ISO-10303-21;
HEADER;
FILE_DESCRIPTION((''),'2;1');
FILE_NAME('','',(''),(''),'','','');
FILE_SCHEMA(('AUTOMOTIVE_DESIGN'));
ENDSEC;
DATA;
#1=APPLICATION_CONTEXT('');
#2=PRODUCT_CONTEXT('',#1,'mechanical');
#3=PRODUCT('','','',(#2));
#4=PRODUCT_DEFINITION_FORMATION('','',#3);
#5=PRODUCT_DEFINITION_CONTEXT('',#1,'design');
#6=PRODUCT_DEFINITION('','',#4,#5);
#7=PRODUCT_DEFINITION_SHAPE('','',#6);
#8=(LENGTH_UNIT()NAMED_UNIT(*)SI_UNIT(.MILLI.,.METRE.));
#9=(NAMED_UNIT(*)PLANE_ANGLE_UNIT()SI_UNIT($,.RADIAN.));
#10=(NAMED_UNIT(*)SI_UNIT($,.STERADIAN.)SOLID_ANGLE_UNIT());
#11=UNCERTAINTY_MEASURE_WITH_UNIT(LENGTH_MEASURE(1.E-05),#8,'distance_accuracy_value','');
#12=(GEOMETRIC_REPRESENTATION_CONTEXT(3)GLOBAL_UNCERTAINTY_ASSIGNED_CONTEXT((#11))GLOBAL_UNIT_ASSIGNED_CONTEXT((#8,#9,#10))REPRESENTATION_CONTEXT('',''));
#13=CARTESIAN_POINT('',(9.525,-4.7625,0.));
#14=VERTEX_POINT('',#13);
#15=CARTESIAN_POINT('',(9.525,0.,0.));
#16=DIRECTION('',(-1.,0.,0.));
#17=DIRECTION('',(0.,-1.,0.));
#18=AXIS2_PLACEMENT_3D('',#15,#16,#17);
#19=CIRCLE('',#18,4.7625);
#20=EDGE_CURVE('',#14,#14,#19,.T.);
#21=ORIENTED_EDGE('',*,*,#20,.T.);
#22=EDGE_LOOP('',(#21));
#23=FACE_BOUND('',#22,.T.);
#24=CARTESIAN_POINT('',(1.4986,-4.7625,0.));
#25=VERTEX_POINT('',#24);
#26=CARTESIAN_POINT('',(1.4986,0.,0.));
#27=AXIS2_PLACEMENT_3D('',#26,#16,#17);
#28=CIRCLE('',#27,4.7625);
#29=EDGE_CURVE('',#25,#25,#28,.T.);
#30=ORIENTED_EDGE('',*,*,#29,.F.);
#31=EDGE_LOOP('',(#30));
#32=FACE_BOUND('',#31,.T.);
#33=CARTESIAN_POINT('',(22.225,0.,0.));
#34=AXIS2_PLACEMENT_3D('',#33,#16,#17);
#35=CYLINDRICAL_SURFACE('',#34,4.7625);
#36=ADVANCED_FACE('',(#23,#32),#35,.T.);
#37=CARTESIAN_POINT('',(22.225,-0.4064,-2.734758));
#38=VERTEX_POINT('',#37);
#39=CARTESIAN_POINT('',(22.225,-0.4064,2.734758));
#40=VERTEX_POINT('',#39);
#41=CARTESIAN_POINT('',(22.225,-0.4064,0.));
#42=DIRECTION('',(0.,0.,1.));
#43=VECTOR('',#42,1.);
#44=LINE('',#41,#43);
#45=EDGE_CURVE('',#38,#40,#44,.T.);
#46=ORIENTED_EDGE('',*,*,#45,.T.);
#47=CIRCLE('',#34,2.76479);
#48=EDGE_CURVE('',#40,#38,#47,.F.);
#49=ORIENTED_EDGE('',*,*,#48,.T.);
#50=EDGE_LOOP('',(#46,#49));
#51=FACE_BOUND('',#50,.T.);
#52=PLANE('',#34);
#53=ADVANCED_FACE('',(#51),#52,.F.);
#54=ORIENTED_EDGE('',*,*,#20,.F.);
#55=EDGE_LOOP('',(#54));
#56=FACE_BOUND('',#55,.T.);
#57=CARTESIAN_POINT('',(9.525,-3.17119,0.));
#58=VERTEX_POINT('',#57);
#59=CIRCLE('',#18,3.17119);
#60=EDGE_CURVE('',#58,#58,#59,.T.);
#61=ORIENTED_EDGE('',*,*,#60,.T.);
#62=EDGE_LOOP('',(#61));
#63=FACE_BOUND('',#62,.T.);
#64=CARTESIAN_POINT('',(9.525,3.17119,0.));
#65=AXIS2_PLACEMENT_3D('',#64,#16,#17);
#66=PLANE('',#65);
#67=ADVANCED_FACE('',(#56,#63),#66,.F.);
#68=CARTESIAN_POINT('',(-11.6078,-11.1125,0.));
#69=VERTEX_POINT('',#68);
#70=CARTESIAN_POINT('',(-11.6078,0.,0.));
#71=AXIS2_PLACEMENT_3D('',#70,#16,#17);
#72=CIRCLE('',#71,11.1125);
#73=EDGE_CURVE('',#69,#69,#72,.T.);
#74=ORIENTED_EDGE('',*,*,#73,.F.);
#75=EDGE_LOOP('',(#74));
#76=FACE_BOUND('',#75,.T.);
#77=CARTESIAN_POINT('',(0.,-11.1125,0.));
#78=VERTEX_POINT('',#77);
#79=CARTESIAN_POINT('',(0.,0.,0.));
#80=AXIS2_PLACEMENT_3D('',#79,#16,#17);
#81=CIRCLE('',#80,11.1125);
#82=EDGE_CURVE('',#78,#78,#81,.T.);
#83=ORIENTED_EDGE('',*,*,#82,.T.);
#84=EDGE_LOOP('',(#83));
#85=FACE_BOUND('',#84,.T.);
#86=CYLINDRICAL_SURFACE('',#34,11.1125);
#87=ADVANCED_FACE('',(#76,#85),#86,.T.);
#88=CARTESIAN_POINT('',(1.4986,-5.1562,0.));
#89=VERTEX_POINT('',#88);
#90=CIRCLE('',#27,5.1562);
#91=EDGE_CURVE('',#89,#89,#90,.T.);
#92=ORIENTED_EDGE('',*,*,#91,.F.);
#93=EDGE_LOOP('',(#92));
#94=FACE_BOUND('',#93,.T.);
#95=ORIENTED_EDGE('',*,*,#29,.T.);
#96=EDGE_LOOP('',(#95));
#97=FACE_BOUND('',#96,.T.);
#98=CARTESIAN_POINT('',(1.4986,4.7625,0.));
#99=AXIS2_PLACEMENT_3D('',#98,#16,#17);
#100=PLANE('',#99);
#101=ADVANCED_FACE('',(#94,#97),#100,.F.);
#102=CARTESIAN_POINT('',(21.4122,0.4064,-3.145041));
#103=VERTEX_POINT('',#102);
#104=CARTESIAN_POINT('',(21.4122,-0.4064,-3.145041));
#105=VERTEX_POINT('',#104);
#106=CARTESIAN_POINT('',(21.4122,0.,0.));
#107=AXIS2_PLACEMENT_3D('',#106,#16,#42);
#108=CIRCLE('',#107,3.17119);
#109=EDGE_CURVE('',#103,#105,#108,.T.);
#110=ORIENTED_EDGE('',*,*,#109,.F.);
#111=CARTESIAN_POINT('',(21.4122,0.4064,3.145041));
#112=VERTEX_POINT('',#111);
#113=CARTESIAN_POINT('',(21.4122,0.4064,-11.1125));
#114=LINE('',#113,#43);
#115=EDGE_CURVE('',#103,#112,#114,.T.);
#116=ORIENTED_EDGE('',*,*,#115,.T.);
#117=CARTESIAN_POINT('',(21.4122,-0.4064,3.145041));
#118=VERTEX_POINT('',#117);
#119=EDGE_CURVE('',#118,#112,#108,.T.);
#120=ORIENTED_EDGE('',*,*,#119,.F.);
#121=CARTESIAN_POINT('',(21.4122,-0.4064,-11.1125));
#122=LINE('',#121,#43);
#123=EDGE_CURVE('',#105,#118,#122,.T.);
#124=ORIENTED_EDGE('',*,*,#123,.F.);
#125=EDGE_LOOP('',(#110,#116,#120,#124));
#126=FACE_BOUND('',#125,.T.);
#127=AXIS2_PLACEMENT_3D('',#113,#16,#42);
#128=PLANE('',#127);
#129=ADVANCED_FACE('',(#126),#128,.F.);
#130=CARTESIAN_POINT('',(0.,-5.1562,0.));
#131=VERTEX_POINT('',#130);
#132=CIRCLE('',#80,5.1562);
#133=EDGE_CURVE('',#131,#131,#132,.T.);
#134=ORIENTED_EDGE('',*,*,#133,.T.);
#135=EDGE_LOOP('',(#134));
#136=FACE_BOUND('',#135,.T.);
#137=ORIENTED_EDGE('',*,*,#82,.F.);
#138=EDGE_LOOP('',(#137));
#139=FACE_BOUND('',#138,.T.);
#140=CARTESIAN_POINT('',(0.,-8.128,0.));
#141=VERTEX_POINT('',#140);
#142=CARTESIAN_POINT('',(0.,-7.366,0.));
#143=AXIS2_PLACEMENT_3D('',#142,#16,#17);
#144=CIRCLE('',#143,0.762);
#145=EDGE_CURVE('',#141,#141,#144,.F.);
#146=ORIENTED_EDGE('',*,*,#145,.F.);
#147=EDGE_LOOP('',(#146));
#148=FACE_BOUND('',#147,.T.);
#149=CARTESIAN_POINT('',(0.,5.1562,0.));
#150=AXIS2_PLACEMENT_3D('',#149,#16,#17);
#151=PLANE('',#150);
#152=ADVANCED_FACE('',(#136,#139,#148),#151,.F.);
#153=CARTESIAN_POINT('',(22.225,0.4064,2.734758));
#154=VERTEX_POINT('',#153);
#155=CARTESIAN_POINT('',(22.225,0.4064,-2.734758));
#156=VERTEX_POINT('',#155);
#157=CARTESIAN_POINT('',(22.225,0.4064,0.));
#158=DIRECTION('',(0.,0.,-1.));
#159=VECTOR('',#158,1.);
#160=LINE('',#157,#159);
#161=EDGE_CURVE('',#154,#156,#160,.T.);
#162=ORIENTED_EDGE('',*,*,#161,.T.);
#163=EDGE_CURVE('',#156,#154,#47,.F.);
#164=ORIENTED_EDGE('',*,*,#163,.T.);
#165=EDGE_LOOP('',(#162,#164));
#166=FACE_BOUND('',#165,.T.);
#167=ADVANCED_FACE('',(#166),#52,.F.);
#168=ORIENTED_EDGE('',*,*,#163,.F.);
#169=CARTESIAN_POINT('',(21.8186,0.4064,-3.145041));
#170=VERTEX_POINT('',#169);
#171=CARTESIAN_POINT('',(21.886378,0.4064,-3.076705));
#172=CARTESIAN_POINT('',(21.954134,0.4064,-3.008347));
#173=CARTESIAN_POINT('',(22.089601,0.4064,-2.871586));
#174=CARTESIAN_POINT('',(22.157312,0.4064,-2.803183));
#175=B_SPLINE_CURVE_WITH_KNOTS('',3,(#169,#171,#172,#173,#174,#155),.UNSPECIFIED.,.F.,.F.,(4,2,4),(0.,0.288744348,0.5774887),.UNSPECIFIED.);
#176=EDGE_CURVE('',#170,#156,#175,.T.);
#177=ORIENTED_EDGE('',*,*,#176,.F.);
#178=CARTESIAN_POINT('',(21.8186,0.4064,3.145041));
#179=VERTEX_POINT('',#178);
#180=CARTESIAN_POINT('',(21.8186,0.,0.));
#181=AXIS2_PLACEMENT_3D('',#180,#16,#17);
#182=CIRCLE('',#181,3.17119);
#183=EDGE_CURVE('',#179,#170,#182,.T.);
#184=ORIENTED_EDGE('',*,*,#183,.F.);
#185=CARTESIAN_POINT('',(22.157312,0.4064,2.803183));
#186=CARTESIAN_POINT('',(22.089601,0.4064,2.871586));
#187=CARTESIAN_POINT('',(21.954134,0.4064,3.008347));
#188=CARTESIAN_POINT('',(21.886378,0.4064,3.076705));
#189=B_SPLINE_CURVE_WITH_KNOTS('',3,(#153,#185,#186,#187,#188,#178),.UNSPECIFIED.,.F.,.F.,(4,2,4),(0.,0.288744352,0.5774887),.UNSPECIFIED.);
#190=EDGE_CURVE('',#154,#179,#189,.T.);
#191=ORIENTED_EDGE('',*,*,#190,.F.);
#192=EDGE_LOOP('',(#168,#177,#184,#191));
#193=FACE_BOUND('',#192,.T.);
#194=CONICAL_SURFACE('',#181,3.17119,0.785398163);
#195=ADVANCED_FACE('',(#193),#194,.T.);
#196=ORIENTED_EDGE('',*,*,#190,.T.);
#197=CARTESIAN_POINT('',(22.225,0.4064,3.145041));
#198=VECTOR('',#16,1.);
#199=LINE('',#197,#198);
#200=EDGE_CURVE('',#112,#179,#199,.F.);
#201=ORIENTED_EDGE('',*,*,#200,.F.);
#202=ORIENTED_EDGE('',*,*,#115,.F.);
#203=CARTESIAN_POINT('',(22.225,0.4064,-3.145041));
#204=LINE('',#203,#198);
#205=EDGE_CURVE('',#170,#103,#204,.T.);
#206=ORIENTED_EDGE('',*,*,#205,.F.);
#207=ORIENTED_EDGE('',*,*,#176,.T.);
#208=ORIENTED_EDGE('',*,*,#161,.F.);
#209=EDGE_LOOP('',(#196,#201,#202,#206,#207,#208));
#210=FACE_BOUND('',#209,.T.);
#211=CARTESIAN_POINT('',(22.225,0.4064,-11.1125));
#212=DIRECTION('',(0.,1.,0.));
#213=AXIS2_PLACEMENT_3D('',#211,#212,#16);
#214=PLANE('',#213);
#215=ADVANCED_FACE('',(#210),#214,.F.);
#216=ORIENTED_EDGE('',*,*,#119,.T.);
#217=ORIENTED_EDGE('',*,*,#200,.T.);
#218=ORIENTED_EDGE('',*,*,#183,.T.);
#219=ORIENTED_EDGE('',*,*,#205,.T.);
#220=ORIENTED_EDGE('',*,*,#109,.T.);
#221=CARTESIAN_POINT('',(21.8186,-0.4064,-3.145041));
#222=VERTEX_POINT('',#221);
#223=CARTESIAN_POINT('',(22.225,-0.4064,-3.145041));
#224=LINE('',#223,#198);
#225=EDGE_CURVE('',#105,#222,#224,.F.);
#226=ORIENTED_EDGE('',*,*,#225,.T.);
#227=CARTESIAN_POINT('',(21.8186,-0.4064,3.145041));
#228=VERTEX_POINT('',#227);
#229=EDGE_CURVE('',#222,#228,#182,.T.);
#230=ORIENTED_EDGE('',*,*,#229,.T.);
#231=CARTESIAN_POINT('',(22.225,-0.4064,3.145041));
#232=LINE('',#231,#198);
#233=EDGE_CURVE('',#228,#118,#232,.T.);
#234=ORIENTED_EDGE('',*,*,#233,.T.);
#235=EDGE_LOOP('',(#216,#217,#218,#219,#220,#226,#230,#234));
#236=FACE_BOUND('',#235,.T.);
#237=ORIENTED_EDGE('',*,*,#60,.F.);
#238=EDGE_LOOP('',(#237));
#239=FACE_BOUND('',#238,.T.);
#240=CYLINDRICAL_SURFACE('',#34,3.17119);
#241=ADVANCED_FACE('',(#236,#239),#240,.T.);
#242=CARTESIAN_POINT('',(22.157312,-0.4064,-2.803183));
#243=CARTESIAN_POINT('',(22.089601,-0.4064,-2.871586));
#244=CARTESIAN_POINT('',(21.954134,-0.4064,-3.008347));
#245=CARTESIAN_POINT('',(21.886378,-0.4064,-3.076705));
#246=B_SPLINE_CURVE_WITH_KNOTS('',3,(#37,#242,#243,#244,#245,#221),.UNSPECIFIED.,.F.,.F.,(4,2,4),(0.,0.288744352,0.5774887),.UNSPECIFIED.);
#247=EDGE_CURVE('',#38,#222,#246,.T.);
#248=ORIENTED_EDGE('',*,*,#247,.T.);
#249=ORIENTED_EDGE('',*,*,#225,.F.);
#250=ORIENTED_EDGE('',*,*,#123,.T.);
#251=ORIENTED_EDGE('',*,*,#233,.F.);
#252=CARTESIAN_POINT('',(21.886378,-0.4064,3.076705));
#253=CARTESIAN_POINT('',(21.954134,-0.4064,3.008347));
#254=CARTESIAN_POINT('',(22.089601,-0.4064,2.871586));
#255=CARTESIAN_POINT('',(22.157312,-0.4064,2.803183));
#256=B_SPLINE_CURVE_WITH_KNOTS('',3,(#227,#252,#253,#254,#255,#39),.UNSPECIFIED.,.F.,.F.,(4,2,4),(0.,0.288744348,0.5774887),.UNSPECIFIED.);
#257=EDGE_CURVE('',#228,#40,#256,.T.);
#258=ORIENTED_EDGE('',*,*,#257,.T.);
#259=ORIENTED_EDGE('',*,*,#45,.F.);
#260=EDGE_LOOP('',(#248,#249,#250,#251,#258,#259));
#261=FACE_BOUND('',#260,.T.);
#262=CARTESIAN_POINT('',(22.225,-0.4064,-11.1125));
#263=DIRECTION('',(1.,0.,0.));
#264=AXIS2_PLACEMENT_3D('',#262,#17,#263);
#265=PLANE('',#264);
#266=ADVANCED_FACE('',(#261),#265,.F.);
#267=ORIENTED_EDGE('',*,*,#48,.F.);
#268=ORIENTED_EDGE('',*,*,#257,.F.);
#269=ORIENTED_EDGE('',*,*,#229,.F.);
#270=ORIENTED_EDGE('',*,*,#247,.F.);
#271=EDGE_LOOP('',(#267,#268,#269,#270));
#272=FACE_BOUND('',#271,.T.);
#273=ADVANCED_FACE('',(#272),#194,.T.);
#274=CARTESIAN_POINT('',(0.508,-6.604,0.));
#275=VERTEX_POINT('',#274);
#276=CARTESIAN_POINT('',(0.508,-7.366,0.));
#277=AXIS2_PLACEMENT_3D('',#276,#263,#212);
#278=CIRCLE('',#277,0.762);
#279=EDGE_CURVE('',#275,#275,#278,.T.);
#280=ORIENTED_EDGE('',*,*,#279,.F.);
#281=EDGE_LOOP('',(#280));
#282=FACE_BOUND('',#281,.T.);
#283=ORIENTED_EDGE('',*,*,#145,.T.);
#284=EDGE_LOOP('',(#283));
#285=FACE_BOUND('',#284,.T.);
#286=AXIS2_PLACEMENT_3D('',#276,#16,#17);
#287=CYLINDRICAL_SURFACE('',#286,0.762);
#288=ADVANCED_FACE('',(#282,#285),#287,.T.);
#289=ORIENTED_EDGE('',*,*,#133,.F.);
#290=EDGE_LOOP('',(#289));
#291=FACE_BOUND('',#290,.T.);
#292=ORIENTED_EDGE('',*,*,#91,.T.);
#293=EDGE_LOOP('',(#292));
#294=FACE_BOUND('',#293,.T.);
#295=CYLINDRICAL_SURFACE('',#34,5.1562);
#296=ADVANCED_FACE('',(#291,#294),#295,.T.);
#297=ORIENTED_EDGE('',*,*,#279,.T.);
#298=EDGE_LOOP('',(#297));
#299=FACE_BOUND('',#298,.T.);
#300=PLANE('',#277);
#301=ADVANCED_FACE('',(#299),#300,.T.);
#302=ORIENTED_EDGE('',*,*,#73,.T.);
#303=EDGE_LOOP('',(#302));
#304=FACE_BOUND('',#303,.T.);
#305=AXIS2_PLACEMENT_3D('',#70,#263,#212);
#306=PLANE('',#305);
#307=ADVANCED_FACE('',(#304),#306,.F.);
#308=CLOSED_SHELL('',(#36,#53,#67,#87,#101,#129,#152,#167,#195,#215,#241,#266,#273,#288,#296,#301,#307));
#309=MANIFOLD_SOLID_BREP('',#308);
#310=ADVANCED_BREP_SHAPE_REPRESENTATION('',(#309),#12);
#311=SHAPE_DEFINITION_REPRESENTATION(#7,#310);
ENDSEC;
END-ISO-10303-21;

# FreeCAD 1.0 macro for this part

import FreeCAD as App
import Part
import Sketcher
from FreeCAD import Vector
Q = App.Units.Quantity


def edges_at(feature, points):
    """Names of the edges that pass closest to the given points."""
    edges = feature.Shape.Edges
    near = lambda p: min(range(len(edges)), key=lambda i: edges[i].distToShape(Part.Vertex(*p))[0])
    return sorted({f"Edge{near(p) + 1}" for p in points})

doc = App.newDocument("Part")
body = doc.addObject("PartDesign::Body", "Body")

# Sketch on XY plane
sketch1 = body.newObject("Sketcher::SketchObject", "Sketch")
sketch1.AttachmentSupport = (doc.getObject("XY_Plane"), [""])
sketch1.MapMode = "FlatFace"
sketch1.addGeometry([
    Part.LineSegment(Vector(22.23, 0, 0), Vector(22.23, 3.17, 0)),  # 0
    Part.LineSegment(Vector(22.23, 3.17, 0), Vector(9.53, 3.17, 0)),  # 1
    Part.LineSegment(Vector(9.53, 3.17, 0), Vector(9.53, 4.76, 0)),  # 2
    Part.LineSegment(Vector(9.53, 4.76, 0), Vector(1.5, 4.76, 0)),  # 3
    Part.LineSegment(Vector(1.5, 4.76, 0), Vector(1.5, 5.16, 0)),  # 4
    Part.LineSegment(Vector(1.5, 5.16, 0), Vector(0, 5.16, 0)),  # 5
    Part.LineSegment(Vector(0, 5.16, 0), Vector(0, 11.11, 0)),  # 6
    Part.LineSegment(Vector(0, 11.11, 0), Vector(-11.61, 11.11, 0)),  # 7
    Part.LineSegment(Vector(-11.61, 11.11, 0), Vector(-11.61, 0, 0)),  # 8
    Part.LineSegment(Vector(-11.61, 0, 0), Vector(22.23, 0, 0)),  # 9
], False)
sketch1.addConstraint([
    Sketcher.Constraint("Coincident", 0, 2, 1, 1),
    Sketcher.Constraint("Coincident", 1, 2, 2, 1),
    Sketcher.Constraint("Coincident", 2, 2, 3, 1),
    Sketcher.Constraint("Coincident", 3, 2, 4, 1),
    Sketcher.Constraint("Coincident", 4, 2, 5, 1),
    Sketcher.Constraint("Coincident", 5, 2, 6, 1),
    Sketcher.Constraint("Coincident", 6, 2, 7, 1),
    Sketcher.Constraint("Coincident", 7, 2, 8, 1),
    Sketcher.Constraint("Coincident", 8, 2, 9, 1),
    Sketcher.Constraint("Coincident", 9, 2, 0, 1),
    Sketcher.Constraint("Vertical", 0),
    Sketcher.Constraint("Horizontal", 1),
    Sketcher.Constraint("Vertical", 2),
    Sketcher.Constraint("Horizontal", 3),
    Sketcher.Constraint("Vertical", 4),
    Sketcher.Constraint("Horizontal", 5),
    Sketcher.Constraint("Vertical", 6),
    Sketcher.Constraint("Horizontal", 7),
    Sketcher.Constraint("Vertical", 8),
    Sketcher.Constraint("Horizontal", 9),
    Sketcher.Constraint("PointOnObject", 5, 2, -2),
    Sketcher.Constraint("PointOnObject", 8, 2, -1),
    Sketcher.Constraint("DistanceX", 1, 2, 1, 1, Q("0.5 in")),
    Sketcher.Constraint("DistanceX", 3, 2, 3, 1, Q("0.316 in")),
    Sketcher.Constraint("DistanceX", 5, 2, 5, 1, Q("0.059 in")),
    Sketcher.Constraint("DistanceX", 7, 2, 7, 1, Q("0.457 in")),
    Sketcher.Constraint("DistanceY", 8, 2, 8, 1, Q("0.4375 in")),
    Sketcher.Constraint("DistanceY", 3, 2, 6, 2, Q("0.25 in")),
    Sketcher.Constraint("DistanceY", 4, 1, 4, 2, Q("0.0155 in")),
    Sketcher.Constraint("DistanceY", 0, 1, 0, 2, Q("3.17119 mm")),
])
revolution = body.newObject("PartDesign::Revolution", "Revolution")
revolution.Profile = sketch1
revolution.ReferenceAxis = (sketch1, ["H_Axis"])
revolution.Angle = 360

# Sketch on YZ plane
sketch2 = body.newObject("Sketcher::SketchObject", "Sketch001")
sketch2.AttachmentSupport = (doc.getObject("YZ_Plane"), [""])
sketch2.MapMode = "FlatFace"
sketch2.addGeometry(Part.Circle(Vector(-7.4, 0, 0), Vector(0, 0, 1), 0.8), False)
sketch2.addConstraint([
    Sketcher.Constraint("PointOnObject", 0, 3, -1),
    Sketcher.Constraint("Diameter", 0, Q("0.06 in")),
    Sketcher.Constraint("DistanceX", 0, 3, -1, 1, Q("0.29 in")),
])
pad1 = body.newObject("PartDesign::Pad", "Pad")
pad1.Profile = sketch2
pad1.Length = Q("0.04 in")
pad1.Midplane = True

# Sketch on XY plane
sketch3 = body.newObject("Sketcher::SketchObject", "Sketch002")
sketch3.AttachmentSupport = (doc.getObject("XY_Plane"), [""])
sketch3.MapMode = "FlatFace"
sketch3.addGeometry([
    Part.LineSegment(Vector(21.4, 0.4, 0), Vector(21.4, -0.4, 0)),
    Part.LineSegment(Vector(21.4, -0.4, 0), Vector(22.2, -0.4, 0)),
    Part.LineSegment(Vector(22.2, -0.4, 0), Vector(22.2, 0.4, 0)),
    Part.LineSegment(Vector(22.2, 0.4, 0), Vector(21.4, 0.4, 0)),
], False)
sketch3.addConstraint([
    Sketcher.Constraint("Coincident", 0, 2, 1, 1),
    Sketcher.Constraint("Coincident", 1, 2, 2, 1),
    Sketcher.Constraint("Coincident", 2, 2, 3, 1),
    Sketcher.Constraint("Coincident", 3, 2, 0, 1),
    Sketcher.Constraint("Vertical", 0),
    Sketcher.Constraint("Horizontal", 1),
    Sketcher.Constraint("Vertical", 2),
    Sketcher.Constraint("Horizontal", 3),
    Sketcher.Constraint("Equal", 3, 0),
    Sketcher.Constraint("DistanceX", 1, 1, 1, 2, Q("0.032 in")),
    Sketcher.Constraint("DistanceX", -1, 1, 0, 2, Q("0.843 in")),
    Sketcher.Constraint("DistanceY", 0, 2, -1, 1, Q("0.016 in")),
])
pocket1 = body.newObject("PartDesign::Pocket", "Pocket")
pocket1.Profile = sketch3
pocket1.Type = "ThroughAll"
pocket1.Midplane = True
doc.recompute()

chamfer = body.newObject("PartDesign::Chamfer", "Chamfer")
chamfer.Base = (pocket1, edges_at(pocket1, [(22.225, 3.171, 0), (22.225, -2.382, 2.094)]))
chamfer.Size = Q("0.016 in")

doc.recompute()
